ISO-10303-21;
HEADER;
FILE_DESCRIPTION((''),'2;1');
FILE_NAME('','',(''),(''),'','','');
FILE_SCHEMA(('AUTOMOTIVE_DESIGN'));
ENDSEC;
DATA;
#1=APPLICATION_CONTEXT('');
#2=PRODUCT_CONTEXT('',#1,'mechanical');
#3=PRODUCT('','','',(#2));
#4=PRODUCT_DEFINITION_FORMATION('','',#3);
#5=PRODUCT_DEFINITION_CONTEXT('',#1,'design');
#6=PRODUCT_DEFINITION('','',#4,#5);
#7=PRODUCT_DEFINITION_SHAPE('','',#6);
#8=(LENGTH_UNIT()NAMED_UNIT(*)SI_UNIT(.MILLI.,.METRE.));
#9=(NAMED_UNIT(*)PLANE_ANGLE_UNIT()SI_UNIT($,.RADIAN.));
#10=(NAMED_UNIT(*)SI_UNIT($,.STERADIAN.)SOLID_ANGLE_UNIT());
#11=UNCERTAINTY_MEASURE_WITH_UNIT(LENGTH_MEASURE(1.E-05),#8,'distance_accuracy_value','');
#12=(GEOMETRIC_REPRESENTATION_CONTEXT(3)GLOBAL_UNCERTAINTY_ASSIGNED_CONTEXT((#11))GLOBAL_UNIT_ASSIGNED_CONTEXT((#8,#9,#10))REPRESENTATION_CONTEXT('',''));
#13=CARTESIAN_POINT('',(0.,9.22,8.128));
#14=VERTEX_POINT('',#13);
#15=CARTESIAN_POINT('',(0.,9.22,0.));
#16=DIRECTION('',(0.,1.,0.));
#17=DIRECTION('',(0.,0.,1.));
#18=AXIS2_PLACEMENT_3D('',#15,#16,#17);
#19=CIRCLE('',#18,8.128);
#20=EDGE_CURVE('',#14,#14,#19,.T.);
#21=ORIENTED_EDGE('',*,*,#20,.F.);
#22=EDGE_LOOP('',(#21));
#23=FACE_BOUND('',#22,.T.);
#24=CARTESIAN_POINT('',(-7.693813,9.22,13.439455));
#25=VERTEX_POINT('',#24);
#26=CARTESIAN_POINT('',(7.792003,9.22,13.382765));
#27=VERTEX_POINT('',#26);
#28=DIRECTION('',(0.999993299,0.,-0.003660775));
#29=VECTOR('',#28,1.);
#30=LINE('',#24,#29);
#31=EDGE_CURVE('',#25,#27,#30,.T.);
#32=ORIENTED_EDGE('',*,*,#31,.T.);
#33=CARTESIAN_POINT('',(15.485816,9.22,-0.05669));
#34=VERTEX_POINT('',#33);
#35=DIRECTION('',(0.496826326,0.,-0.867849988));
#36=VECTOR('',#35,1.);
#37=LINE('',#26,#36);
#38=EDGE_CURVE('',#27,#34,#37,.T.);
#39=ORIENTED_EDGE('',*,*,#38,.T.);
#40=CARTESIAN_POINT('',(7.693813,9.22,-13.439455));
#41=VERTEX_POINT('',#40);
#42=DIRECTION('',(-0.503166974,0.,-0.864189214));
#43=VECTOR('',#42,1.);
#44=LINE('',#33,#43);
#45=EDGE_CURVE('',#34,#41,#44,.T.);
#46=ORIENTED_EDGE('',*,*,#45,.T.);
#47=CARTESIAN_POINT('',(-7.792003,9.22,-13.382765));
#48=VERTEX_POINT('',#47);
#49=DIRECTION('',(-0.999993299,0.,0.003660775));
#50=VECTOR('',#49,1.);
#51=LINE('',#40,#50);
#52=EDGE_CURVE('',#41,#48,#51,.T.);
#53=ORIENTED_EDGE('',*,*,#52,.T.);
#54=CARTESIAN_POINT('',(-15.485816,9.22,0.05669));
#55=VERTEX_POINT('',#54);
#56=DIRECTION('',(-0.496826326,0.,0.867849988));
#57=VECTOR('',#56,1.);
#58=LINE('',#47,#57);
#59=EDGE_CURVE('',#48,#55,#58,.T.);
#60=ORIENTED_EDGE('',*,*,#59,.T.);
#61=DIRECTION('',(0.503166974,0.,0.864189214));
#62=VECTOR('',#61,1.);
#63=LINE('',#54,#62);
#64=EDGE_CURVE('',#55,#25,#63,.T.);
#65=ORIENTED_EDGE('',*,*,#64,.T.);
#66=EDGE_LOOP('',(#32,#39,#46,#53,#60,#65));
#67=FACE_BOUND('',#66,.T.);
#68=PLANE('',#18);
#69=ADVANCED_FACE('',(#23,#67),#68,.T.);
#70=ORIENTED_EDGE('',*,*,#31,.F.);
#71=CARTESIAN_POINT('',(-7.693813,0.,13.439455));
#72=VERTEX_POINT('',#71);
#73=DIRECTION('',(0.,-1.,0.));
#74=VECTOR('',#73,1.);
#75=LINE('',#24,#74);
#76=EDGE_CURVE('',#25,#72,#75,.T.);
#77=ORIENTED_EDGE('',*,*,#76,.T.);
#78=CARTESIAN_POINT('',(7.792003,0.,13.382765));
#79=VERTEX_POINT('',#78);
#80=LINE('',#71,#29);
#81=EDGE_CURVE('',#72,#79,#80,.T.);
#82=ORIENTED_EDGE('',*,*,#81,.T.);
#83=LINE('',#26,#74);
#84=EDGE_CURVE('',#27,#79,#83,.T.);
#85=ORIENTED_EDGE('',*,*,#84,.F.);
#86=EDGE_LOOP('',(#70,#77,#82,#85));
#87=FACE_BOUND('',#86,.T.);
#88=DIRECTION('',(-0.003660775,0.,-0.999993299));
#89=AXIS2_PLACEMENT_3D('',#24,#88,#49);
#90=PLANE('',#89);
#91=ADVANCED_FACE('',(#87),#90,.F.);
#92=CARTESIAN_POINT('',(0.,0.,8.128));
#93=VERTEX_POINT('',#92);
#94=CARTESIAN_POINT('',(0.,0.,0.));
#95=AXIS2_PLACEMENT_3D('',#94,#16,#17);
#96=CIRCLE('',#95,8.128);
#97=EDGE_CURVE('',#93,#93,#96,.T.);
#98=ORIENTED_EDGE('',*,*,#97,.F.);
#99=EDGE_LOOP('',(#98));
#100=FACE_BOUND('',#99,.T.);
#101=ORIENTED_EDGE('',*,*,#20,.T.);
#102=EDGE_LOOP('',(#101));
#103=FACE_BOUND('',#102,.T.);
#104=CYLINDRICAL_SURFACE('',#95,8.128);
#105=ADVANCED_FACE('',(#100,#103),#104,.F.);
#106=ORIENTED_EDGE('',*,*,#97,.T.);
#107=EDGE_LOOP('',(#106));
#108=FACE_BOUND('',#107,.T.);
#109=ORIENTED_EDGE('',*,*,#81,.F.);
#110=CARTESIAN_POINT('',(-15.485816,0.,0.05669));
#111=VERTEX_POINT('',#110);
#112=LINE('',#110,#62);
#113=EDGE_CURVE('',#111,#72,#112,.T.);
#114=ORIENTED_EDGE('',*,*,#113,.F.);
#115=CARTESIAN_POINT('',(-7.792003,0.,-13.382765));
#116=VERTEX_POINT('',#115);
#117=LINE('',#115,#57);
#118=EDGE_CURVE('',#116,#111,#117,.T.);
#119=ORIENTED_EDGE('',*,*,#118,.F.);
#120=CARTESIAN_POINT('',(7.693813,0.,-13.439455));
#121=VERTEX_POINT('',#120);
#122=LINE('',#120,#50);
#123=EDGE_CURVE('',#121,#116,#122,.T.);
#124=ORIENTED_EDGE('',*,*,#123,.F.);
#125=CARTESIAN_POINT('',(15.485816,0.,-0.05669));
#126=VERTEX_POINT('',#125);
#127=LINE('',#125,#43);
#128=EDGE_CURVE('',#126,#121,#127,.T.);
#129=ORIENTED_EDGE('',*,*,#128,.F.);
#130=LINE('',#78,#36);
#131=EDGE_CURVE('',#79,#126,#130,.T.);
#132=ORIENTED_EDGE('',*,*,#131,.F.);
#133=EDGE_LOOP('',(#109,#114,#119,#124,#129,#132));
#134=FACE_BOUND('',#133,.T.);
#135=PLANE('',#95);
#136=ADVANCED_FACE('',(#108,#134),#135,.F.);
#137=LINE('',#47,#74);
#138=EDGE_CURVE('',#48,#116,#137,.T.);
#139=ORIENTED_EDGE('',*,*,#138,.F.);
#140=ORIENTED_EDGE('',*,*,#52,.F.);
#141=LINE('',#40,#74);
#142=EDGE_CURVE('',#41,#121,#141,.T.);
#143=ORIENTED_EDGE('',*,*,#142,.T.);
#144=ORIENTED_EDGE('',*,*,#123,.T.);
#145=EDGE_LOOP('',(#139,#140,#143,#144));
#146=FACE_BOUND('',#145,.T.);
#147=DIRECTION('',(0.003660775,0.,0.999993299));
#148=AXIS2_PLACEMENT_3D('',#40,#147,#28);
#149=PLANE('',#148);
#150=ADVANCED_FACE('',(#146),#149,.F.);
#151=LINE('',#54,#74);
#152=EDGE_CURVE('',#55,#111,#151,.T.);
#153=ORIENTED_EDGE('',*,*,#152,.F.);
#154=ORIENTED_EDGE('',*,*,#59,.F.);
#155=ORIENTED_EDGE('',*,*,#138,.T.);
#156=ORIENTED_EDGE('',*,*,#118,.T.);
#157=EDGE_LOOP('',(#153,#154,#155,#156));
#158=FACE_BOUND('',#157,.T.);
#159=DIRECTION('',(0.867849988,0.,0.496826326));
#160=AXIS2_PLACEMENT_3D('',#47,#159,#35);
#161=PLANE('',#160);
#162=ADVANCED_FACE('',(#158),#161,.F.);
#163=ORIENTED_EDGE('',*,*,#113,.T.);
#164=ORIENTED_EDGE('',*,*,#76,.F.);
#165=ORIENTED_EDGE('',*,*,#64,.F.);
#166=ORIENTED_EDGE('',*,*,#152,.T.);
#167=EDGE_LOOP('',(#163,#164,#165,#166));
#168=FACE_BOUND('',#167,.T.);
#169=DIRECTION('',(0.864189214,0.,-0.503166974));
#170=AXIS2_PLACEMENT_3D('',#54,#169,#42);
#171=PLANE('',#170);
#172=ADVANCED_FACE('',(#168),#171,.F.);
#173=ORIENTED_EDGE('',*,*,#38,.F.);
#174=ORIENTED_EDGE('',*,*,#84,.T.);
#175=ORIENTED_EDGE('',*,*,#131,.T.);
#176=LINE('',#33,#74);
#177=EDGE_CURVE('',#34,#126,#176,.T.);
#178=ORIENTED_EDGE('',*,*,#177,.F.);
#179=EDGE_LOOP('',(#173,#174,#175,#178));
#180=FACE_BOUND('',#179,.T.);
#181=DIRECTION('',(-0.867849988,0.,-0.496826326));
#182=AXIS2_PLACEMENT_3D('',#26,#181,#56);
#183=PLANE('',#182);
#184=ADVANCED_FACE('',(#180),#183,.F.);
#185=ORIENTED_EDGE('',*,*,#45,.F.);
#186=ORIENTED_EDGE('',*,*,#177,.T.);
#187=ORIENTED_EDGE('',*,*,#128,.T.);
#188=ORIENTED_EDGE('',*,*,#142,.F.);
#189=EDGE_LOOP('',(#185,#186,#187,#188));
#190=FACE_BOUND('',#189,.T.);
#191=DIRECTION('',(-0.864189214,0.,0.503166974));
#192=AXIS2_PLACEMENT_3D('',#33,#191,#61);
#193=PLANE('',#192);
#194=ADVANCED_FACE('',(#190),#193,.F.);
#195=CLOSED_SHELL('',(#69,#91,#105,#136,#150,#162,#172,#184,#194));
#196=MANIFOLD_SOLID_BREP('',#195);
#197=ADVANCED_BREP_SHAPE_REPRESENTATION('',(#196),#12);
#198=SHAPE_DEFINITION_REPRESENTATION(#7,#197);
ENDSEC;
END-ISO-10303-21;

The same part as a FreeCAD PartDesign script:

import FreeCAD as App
import Part
import Sketcher
from FreeCAD import Vector
Q = App.Units.Quantity

doc = App.newDocument("Part")
body = doc.addObject("PartDesign::Body", "Body")

sketch1 = doc.addObject("Sketcher::SketchObject", "Sketch")
body.addObject(sketch1)
sketch1.AttachmentSupport = (doc.XZ_Plane, [""])
sketch1.MapMode = "FlatFace"
sketch1.addGeometry([
    Part.LineSegment(Vector(8, -13, 0), Vector(-8, -13, 0)),
    Part.LineSegment(Vector(-8, -13, 0), Vector(-15, 0, 0)),
    Part.LineSegment(Vector(-15, 0, 0), Vector(-8, 13, 0)),
    Part.LineSegment(Vector(-8, 13, 0), Vector(8, 13, 0)),
    Part.LineSegment(Vector(8, 13, 0), Vector(15, 0, 0)),
    Part.LineSegment(Vector(15, 0, 0), Vector(8, -13, 0)),
], False)
sketch1.addConstraint([
    Sketcher.Constraint("Coincident", 0, 2, 1, 1),
    Sketcher.Constraint("Coincident", 1, 2, 2, 1),
    Sketcher.Constraint("Coincident", 2, 2, 3, 1),
    Sketcher.Constraint("Coincident", 3, 2, 4, 1),
    Sketcher.Constraint("Coincident", 4, 2, 5, 1),
    Sketcher.Constraint("Coincident", 5, 2, 0, 1),
    Sketcher.Constraint("Symmetric", 0, 2, 3, 2, -1, 1),
    Sketcher.Constraint("Symmetric", 1, 2, 4, 2, -1, 1),
    Sketcher.Constraint("Symmetric", 2, 2, 5, 2, -1, 1),
    Sketcher.Constraint("Equal", 0, 1),
    Sketcher.Constraint("Equal", 1, 2),
    Sketcher.Constraint("Distance", 0, 15.48592),
    Sketcher.Constraint("DistanceY", -1, 1, 1, 2, 0.05669),
    Sketcher.Constraint("DistanceX", 0, 2, 2, 2, 0.098191),
    Sketcher.Constraint("DistanceY", 0, 2, 2, 2, 26.82222),
])
pad1 = doc.addObject("PartDesign::Pad", "Pad")
body.addObject(pad1)
pad1.Profile = sketch1
pad1.Length = 9.22
pad1.Reversed = True

sketch2 = doc.addObject("Sketcher::SketchObject", "Sketch001")
body.addObject(sketch2)
sketch2.AttachmentSupport = (doc.XZ_Plane, [""])
sketch2.MapMode = "FlatFace"
sketch2.AttachmentOffset = App.Placement(Vector(0, 0, -9.22), App.Rotation())
sketch2.addGeometry(Part.Circle(Vector(0, 0, 0), Vector(0, 0, 1), 8), False)
sketch2.addConstraint([
    Sketcher.Constraint("Coincident", 0, 3, -1, 1),
    Sketcher.Constraint("Diameter", 0, Q("0.64 in")),
])
pocket1 = doc.addObject("PartDesign::Pocket", "Pocket")
body.addObject(pocket1)
pocket1.Profile = sketch2
pocket1.Type = "ThroughAll"
pocket1.Reversed = True

doc.recompute()
